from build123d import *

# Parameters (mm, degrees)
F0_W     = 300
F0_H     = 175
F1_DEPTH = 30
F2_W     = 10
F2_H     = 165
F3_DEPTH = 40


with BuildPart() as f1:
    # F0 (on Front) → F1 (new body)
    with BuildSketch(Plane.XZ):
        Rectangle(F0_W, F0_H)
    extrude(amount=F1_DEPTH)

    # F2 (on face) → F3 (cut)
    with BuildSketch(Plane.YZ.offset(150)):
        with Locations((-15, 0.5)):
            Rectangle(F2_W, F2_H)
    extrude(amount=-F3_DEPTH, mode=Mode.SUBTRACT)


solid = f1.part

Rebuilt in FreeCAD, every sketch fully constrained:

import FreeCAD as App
import Part
import Sketcher
from FreeCAD import Vector
Q = App.Units.Quantity

doc = App.newDocument("Part")
body = doc.addObject("PartDesign::Body", "Body")

# Sketch on XZ plane
sketch1 = body.newObject("Sketcher::SketchObject", "Sketch")
sketch1.AttachmentSupport = (doc.getObject("XZ_Plane"), [""])
sketch1.MapMode = "FlatFace"
sketch1.addGeometry(Part.LineSegment(Vector(-150, 87.5, 0), Vector(-150, -87.5, 0)), False)
sketch1.addGeometry(Part.LineSegment(Vector(-150, -87.5, 0), Vector(150, -87.5, 0)), False)
sketch1.addGeometry(Part.LineSegment(Vector(150, -87.5, 0), Vector(150, 87.5, 0)), False)
sketch1.addGeometry(Part.LineSegment(Vector(150, 87.5, 0), Vector(-150, 87.5, 0)), False)
sketch1.addConstraint(Sketcher.Constraint("Coincident", 0, 2, 1, 1))
sketch1.addConstraint(Sketcher.Constraint("Coincident", 1, 2, 2, 1))
sketch1.addConstraint(Sketcher.Constraint("Coincident", 2, 2, 3, 1))
sketch1.addConstraint(Sketcher.Constraint("Coincident", 3, 2, 0, 1))
sketch1.addConstraint(Sketcher.Constraint("Vertical", 0))
sketch1.addConstraint(Sketcher.Constraint("Horizontal", 1))
sketch1.addConstraint(Sketcher.Constraint("Vertical", 2))
sketch1.addConstraint(Sketcher.Constraint("Horizontal", 3))
sketch1.addConstraint(Sketcher.Constraint("Symmetric", 0, 2, 2, 2, -1, 1))
sketch1.addConstraint(Sketcher.Constraint("DistanceX", 1, 1, 1, 2, Q("300 mm")))
sketch1.addConstraint(Sketcher.Constraint("DistanceY", 0, 2, 0, 1, Q("175 mm")))
pad1 = body.newObject("PartDesign::Pad", "Pad")
pad1.Profile = sketch1
pad1.Length = 30

# Sketch on YZ plane
sketch2 = body.newObject("Sketcher::SketchObject", "Sketch001")
sketch2.AttachmentSupport = (doc.getObject("YZ_Plane"), [""])
sketch2.MapMode = "FlatFace"
sketch2.AttachmentOffset = App.Placement(Vector(0, 0, 150), App.Rotation())
sketch2.addGeometry(Part.LineSegment(Vector(-20, 83, 0), Vector(-20, -82, 0)), False)
sketch2.addGeometry(Part.LineSegment(Vector(-20, -82, 0), Vector(-10, -82, 0)), False)
sketch2.addGeometry(Part.LineSegment(Vector(-10, -82, 0), Vector(-10, 83, 0)), False)
sketch2.addGeometry(Part.LineSegment(Vector(-10, 83, 0), Vector(-20, 83, 0)), False)
sketch2.addConstraint(Sketcher.Constraint("Coincident", 0, 2, 1, 1))
sketch2.addConstraint(Sketcher.Constraint("Coincident", 1, 2, 2, 1))
sketch2.addConstraint(Sketcher.Constraint("Coincident", 2, 2, 3, 1))
sketch2.addConstraint(Sketcher.Constraint("Coincident", 3, 2, 0, 1))
sketch2.addConstraint(Sketcher.Constraint("Vertical", 0))
sketch2.addConstraint(Sketcher.Constraint("Horizontal", 1))
sketch2.addConstraint(Sketcher.Constraint("Vertical", 2))
sketch2.addConstraint(Sketcher.Constraint("Horizontal", 3))
sketch2.addConstraint(Sketcher.Constraint("DistanceX", 1, 1, 1, 2, Q("10 mm")))
sketch2.addConstraint(Sketcher.Constraint("DistanceY", 0, 2, 0, 1, Q("165 mm")))
sketch2.addConstraint(Sketcher.Constraint("DistanceX", 0, 2, -1, 1, Q("20 mm")))
sketch2.addConstraint(Sketcher.Constraint("DistanceY", 0, 2, -1, 1, Q("82 mm")))
pocket1 = body.newObject("PartDesign::Pocket", "Pocket")
pocket1.Profile = sketch2
pocket1.Length = 40

doc.recompute()
